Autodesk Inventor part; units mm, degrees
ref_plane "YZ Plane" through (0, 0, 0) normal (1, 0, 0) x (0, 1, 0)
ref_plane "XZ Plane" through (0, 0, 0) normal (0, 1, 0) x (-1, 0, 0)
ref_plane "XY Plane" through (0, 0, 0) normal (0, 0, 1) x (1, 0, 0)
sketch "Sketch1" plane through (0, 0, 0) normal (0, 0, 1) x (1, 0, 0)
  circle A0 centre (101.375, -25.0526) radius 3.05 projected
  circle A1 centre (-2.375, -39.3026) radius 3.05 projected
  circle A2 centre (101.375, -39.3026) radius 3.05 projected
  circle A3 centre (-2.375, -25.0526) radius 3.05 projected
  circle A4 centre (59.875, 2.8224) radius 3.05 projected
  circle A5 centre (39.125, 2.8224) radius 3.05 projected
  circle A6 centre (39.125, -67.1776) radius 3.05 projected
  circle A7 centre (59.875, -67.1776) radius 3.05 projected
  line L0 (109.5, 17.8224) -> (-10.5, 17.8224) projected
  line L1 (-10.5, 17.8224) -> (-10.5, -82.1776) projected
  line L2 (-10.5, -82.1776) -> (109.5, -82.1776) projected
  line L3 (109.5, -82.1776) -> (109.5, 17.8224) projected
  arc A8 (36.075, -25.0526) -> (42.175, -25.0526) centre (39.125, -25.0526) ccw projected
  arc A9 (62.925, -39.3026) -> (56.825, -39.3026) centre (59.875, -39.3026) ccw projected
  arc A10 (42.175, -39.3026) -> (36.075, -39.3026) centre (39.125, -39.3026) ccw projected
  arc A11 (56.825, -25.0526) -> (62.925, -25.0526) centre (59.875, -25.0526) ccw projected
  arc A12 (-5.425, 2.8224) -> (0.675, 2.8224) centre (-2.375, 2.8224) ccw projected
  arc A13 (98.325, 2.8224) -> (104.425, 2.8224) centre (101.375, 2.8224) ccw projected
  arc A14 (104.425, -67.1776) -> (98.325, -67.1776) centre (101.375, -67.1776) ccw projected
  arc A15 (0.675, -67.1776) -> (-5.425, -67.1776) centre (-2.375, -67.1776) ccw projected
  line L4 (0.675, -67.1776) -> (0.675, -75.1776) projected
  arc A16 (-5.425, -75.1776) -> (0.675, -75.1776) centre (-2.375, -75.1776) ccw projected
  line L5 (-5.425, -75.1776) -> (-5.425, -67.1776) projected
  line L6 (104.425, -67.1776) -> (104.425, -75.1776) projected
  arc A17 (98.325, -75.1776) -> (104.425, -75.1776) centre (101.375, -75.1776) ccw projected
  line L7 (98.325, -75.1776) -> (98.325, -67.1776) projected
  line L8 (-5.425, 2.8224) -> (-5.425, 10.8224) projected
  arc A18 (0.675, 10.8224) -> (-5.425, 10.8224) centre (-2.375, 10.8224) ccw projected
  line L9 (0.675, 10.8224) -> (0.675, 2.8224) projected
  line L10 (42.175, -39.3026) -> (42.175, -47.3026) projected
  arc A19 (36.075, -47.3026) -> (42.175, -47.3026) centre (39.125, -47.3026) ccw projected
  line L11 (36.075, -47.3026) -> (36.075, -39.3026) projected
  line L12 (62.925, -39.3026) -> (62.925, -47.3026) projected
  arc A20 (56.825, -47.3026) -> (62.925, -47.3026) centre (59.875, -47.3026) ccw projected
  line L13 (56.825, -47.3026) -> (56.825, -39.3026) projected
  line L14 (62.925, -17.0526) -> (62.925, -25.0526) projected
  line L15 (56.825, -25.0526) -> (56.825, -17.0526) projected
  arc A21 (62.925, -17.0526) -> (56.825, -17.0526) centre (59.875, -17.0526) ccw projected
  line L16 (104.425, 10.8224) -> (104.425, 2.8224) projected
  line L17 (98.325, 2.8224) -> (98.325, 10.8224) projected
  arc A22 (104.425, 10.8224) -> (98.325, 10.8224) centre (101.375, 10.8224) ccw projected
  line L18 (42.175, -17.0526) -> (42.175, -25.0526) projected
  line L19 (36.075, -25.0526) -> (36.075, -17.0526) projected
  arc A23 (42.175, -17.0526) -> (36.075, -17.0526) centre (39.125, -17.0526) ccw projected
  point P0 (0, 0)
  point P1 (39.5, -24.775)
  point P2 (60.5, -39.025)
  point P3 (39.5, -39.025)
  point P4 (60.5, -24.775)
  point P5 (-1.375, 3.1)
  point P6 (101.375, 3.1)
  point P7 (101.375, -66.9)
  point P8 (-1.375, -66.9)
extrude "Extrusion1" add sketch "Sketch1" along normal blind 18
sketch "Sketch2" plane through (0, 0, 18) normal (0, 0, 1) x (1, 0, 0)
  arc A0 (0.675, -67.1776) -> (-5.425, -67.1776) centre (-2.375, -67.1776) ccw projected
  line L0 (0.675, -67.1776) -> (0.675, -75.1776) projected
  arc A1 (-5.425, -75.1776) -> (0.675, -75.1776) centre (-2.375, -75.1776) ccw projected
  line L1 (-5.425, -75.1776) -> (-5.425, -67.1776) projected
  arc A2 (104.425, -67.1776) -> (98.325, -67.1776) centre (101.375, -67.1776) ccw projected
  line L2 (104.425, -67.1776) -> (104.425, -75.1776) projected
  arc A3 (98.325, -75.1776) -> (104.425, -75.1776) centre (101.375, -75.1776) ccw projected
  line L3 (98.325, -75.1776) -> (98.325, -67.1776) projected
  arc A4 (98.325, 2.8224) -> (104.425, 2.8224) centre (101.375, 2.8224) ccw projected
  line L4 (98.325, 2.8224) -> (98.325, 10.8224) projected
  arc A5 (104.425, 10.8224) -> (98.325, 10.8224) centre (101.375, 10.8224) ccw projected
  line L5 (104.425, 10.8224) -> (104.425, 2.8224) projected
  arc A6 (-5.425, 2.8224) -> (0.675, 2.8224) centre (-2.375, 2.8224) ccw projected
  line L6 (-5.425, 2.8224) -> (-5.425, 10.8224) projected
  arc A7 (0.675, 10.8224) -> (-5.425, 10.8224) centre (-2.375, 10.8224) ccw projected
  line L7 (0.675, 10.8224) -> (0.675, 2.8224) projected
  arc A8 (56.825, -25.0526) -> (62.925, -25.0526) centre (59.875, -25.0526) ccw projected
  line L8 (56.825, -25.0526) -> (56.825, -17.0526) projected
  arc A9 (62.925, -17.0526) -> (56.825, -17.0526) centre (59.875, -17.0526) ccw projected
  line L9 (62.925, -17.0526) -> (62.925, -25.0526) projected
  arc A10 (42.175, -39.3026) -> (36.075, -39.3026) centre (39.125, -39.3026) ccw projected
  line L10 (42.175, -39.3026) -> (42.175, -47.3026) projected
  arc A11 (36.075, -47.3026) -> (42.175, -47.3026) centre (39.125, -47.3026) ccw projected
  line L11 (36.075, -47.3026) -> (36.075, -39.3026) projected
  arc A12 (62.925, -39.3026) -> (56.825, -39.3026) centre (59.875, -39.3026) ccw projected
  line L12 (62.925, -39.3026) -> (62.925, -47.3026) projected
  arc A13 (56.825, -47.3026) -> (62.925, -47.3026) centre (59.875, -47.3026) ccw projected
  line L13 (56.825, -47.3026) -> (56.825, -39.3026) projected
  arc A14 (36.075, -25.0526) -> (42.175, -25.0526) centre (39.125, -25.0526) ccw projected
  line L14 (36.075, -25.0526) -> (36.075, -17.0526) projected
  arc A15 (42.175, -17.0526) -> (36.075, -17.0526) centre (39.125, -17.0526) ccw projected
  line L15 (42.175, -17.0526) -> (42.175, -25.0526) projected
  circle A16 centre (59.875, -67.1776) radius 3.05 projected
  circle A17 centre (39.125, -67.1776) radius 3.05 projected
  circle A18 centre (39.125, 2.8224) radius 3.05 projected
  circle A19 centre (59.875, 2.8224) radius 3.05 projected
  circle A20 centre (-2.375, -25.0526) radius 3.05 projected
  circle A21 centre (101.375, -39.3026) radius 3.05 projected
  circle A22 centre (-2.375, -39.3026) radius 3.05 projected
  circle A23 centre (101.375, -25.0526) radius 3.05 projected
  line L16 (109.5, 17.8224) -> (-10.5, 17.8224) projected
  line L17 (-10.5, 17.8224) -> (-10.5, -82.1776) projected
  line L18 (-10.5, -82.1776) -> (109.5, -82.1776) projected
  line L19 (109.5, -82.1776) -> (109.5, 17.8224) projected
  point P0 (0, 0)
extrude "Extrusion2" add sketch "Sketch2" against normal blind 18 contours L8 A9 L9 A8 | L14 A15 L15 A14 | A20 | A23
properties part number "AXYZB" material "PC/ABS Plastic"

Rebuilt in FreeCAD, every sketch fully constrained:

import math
import FreeCAD as App
import Part
import Sketcher

V = App.Vector
Q = App.Units.Quantity


def add_polygon(sketch, points):
    """Adds a closed chain of lines whose ends are joined by coincident constraints."""
    first, n = sketch.GeometryCount, len(points)
    for a, b in zip(points, points[1:] + points[:1]):
        sketch.addGeometry(Part.LineSegment(App.Vector(*a, 0), App.Vector(*b, 0)), False)
    for i in range(n):
        sketch.addConstraint(Sketcher.Constraint("Coincident", first + i, 2, first + (i + 1) % n, 1))

doc = App.newDocument("Part")
params = doc.addObject("Spreadsheet::Sheet", "Params")
for row, (alias, value) in enumerate([
    ("sketch1_diameter", "6.1 mm"),
    ("sketch1_width", "120 mm"),
    ("sketch1_height", "100 mm"),
    ("sketch1_height2", "8 mm"),
    ("pad1_length", "18 mm"),
    ("sketch2_diameter", "6.1 mm"),
    ("sketch2_height", "8 mm"),
    ("pad2_length", "18 mm"),
], start=1):
    params.set(f"A{row}", alias)
    params.set(f"B{row}", "=" + value)
    params.setAlias(f"B{row}", alias)

body = doc.addObject("PartDesign::Body", "Body")

sketch1 = body.newObject("Sketcher::SketchObject", "Sketch")
sketch1.AttachmentSupport = (doc.getObject("XY_Plane"), [""])
sketch1.MapMode = "FlatFace"
add_polygon(sketch1, [(109.5, -82.1776), (109.5, 17.8224), (-10.5, 17.8224), (-10.5, -82.1776)])
sketch1.addGeometry(Part.ArcOfCircle(Part.Circle(V(-2.375, -67.1776, 0), V(0, 0, 1), 3.05), math.radians(0), math.radians(180)), False)
sketch1.addGeometry(Part.LineSegment(V(0.675, -67.1776, 0), V(0.675, -75.1776, 0)), False)
sketch1.addGeometry(Part.ArcOfCircle(Part.Circle(V(-2.375, -75.1776, 0), V(0, 0, 1), 3.05), math.radians(180), math.radians(360)), False)
sketch1.addGeometry(Part.LineSegment(V(-5.425, -75.1776, 0), V(-5.425, -67.1776, 0)), False)
sketch1.addGeometry(Part.Circle(V(39.125, -67.1776, 0), V(0, 0, 1), 3.05), False)
sketch1.addGeometry(Part.Circle(V(-2.375, -39.3026, 0), V(0, 0, 1), 3.05), False)
sketch1.addGeometry(Part.ArcOfCircle(Part.Circle(V(39.125, -39.3026, 0), V(0, 0, 1), 3.05), math.radians(0), math.radians(180)), False)
sketch1.addGeometry(Part.LineSegment(V(42.175, -39.3026, 0), V(42.175, -47.3026, 0)), False)
sketch1.addGeometry(Part.ArcOfCircle(Part.Circle(V(39.125, -47.3026, 0), V(0, 0, 1), 3.05), math.radians(180), math.radians(360)), False)
sketch1.addGeometry(Part.LineSegment(V(36.075, -47.3026, 0), V(36.075, -39.3026, 0)), False)
sketch1.addGeometry(Part.Circle(V(59.875, -67.1776, 0), V(0, 0, 1), 3.05), False)
sketch1.addGeometry(Part.ArcOfCircle(Part.Circle(V(101.375, -67.1776, 0), V(0, 0, 1), 3.05), math.radians(0), math.radians(180)), False)
sketch1.addGeometry(Part.LineSegment(V(104.425, -67.1776, 0), V(104.425, -75.1776, 0)), False)
sketch1.addGeometry(Part.ArcOfCircle(Part.Circle(V(101.375, -75.1776, 0), V(0, 0, 1), 3.05), math.radians(180), math.radians(360)), False)
sketch1.addGeometry(Part.LineSegment(V(98.325, -75.1776, 0), V(98.325, -67.1776, 0)), False)
sketch1.addGeometry(Part.ArcOfCircle(Part.Circle(V(59.875, -39.3026, 0), V(0, 0, 1), 3.05), math.radians(0), math.radians(180)), False)
sketch1.addGeometry(Part.LineSegment(V(62.925, -39.3026, 0), V(62.925, -47.3026, 0)), False)
sketch1.addGeometry(Part.ArcOfCircle(Part.Circle(V(59.875, -47.3026, 0), V(0, 0, 1), 3.05), math.radians(180), math.radians(360)), False)
sketch1.addGeometry(Part.LineSegment(V(56.825, -47.3026, 0), V(56.825, -39.3026, 0)), False)
sketch1.addGeometry(Part.Circle(V(101.375, -39.3026, 0), V(0, 0, 1), 3.05), False)
sketch1.addGeometry(Part.Circle(V(-2.375, -25.0526, 0), V(0, 0, 1), 3.05), False)
sketch1.addGeometry(Part.ArcOfCircle(Part.Circle(V(39.125, -25.0526, 0), V(0, 0, 1), 3.05), math.radians(180), math.radians(360)), False)
sketch1.addGeometry(Part.LineSegment(V(36.075, -25.0526, 0), V(36.075, -17.0526, 0)), False)
sketch1.addGeometry(Part.ArcOfCircle(Part.Circle(V(39.125, -17.0526, 0), V(0, 0, 1), 3.05), math.radians(0), math.radians(180)), False)
sketch1.addGeometry(Part.LineSegment(V(42.175, -17.0526, 0), V(42.175, -25.0526, 0)), False)
sketch1.addGeometry(Part.ArcOfCircle(Part.Circle(V(-2.375, 2.8224, 0), V(0, 0, 1), 3.05), math.radians(180), math.radians(360)), False)
sketch1.addGeometry(Part.LineSegment(V(-5.425, 2.8224, 0), V(-5.425, 10.8224, 0)), False)
sketch1.addGeometry(Part.ArcOfCircle(Part.Circle(V(-2.375, 10.8224, 0), V(0, 0, 1), 3.05), math.radians(0), math.radians(180)), False)
sketch1.addGeometry(Part.LineSegment(V(0.675, 10.8224, 0), V(0.675, 2.8224, 0)), False)
sketch1.addGeometry(Part.Circle(V(39.125, 2.8224, 0), V(0, 0, 1), 3.05), False)
sketch1.addGeometry(Part.ArcOfCircle(Part.Circle(V(59.875, -25.0526, 0), V(0, 0, 1), 3.05), math.radians(180), math.radians(360)), False)
sketch1.addGeometry(Part.LineSegment(V(56.825, -25.0526, 0), V(56.825, -17.0526, 0)), False)
sketch1.addGeometry(Part.ArcOfCircle(Part.Circle(V(59.875, -17.0526, 0), V(0, 0, 1), 3.05), math.radians(0), math.radians(180)), False)
sketch1.addGeometry(Part.LineSegment(V(62.925, -17.0526, 0), V(62.925, -25.0526, 0)), False)
sketch1.addGeometry(Part.Circle(V(101.375, -25.0526, 0), V(0, 0, 1), 3.05), False)
sketch1.addGeometry(Part.Circle(V(59.875, 2.8224, 0), V(0, 0, 1), 3.05), False)
sketch1.addGeometry(Part.ArcOfCircle(Part.Circle(V(101.375, 2.8224, 0), V(0, 0, 1), 3.05), math.radians(180), math.radians(360)), False)
sketch1.addGeometry(Part.LineSegment(V(98.325, 2.8224, 0), V(98.325, 10.8224, 0)), False)
sketch1.addGeometry(Part.ArcOfCircle(Part.Circle(V(101.375, 10.8224, 0), V(0, 0, 1), 3.05), math.radians(0), math.radians(180)), False)
sketch1.addGeometry(Part.LineSegment(V(104.425, 10.8224, 0), V(104.425, 2.8224, 0)), False)
sketch1.addConstraint(Sketcher.Constraint("Tangent", 4, 1, 5, 1))
sketch1.addConstraint(Sketcher.Constraint("Tangent", 5, 2, 6, 2))
sketch1.addConstraint(Sketcher.Constraint("Tangent", 6, 1, 7, 1))
sketch1.addConstraint(Sketcher.Constraint("Tangent", 7, 2, 4, 2))
sketch1.addConstraint(Sketcher.Constraint("Tangent", 10, 1, 11, 1))
sketch1.addConstraint(Sketcher.Constraint("Tangent", 11, 2, 12, 2))
sketch1.addConstraint(Sketcher.Constraint("Tangent", 12, 1, 13, 1))
sketch1.addConstraint(Sketcher.Constraint("Tangent", 13, 2, 10, 2))
sketch1.addConstraint(Sketcher.Constraint("Tangent", 15, 1, 16, 1))
sketch1.addConstraint(Sketcher.Constraint("Tangent", 16, 2, 17, 2))
sketch1.addConstraint(Sketcher.Constraint("Tangent", 17, 1, 18, 1))
sketch1.addConstraint(Sketcher.Constraint("Tangent", 18, 2, 15, 2))
sketch1.addConstraint(Sketcher.Constraint("Tangent", 19, 1, 20, 1))
sketch1.addConstraint(Sketcher.Constraint("Tangent", 20, 2, 21, 2))
sketch1.addConstraint(Sketcher.Constraint("Tangent", 21, 1, 22, 1))
sketch1.addConstraint(Sketcher.Constraint("Tangent", 22, 2, 19, 2))
sketch1.addConstraint(Sketcher.Constraint("Tangent", 25, 1, 26, 1))
sketch1.addConstraint(Sketcher.Constraint("Tangent", 26, 2, 27, 2))
sketch1.addConstraint(Sketcher.Constraint("Tangent", 27, 1, 28, 1))
sketch1.addConstraint(Sketcher.Constraint("Tangent", 28, 2, 25, 2))
sketch1.addConstraint(Sketcher.Constraint("Tangent", 29, 1, 30, 1))
sketch1.addConstraint(Sketcher.Constraint("Tangent", 30, 2, 31, 2))
sketch1.addConstraint(Sketcher.Constraint("Tangent", 31, 1, 32, 1))
sketch1.addConstraint(Sketcher.Constraint("Tangent", 32, 2, 29, 2))
sketch1.addConstraint(Sketcher.Constraint("Tangent", 34, 1, 35, 1))
sketch1.addConstraint(Sketcher.Constraint("Tangent", 35, 2, 36, 2))
sketch1.addConstraint(Sketcher.Constraint("Tangent", 36, 1, 37, 1))
sketch1.addConstraint(Sketcher.Constraint("Tangent", 37, 2, 34, 2))
sketch1.addConstraint(Sketcher.Constraint("Tangent", 40, 1, 41, 1))
sketch1.addConstraint(Sketcher.Constraint("Tangent", 41, 2, 42, 2))
sketch1.addConstraint(Sketcher.Constraint("Tangent", 42, 1, 43, 1))
sketch1.addConstraint(Sketcher.Constraint("Tangent", 43, 2, 40, 2))
sketch1.addConstraint(Sketcher.Constraint("Vertical", 0))
sketch1.addConstraint(Sketcher.Constraint("Horizontal", 1))
sketch1.addConstraint(Sketcher.Constraint("Vertical", 2))
sketch1.addConstraint(Sketcher.Constraint("Horizontal", 3))
sketch1.addConstraint(Sketcher.Constraint("Vertical", 5))
sketch1.addConstraint(Sketcher.Constraint("Vertical", 7))
sketch1.addConstraint(Sketcher.Constraint("Vertical", 11))
sketch1.addConstraint(Sketcher.Constraint("Vertical", 13))
sketch1.addConstraint(Sketcher.Constraint("Vertical", 16))
sketch1.addConstraint(Sketcher.Constraint("Vertical", 18))
sketch1.addConstraint(Sketcher.Constraint("Vertical", 20))
sketch1.addConstraint(Sketcher.Constraint("Vertical", 22))
sketch1.addConstraint(Sketcher.Constraint("Vertical", 26))
sketch1.addConstraint(Sketcher.Constraint("Vertical", 28))
sketch1.addConstraint(Sketcher.Constraint("Vertical", 30))
sketch1.addConstraint(Sketcher.Constraint("Vertical", 32))
sketch1.addConstraint(Sketcher.Constraint("Vertical", 35))
sketch1.addConstraint(Sketcher.Constraint("Vertical", 37))
sketch1.addConstraint(Sketcher.Constraint("Vertical", 41))
sketch1.addConstraint(Sketcher.Constraint("Vertical", 43))
sketch1.addConstraint(Sketcher.Constraint("Equal", 6, 8))
sketch1.addConstraint(Sketcher.Constraint("Equal", 8, 9))
sketch1.addConstraint(Sketcher.Constraint("Equal", 9, 10))
sketch1.addConstraint(Sketcher.Constraint("Equal", 12, 14))
sketch1.addConstraint(Sketcher.Constraint("Equal", 14, 15))
sketch1.addConstraint(Sketcher.Constraint("Equal", 17, 19))
sketch1.addConstraint(Sketcher.Constraint("Equal", 21, 23))
sketch1.addConstraint(Sketcher.Constraint("Equal", 23, 24))
sketch1.addConstraint(Sketcher.Constraint("Equal", 24, 25))
sketch1.addConstraint(Sketcher.Constraint("Equal", 27, 29))
sketch1.addConstraint(Sketcher.Constraint("Equal", 31, 33))
sketch1.addConstraint(Sketcher.Constraint("Equal", 33, 34))
sketch1.addConstraint(Sketcher.Constraint("Equal", 36, 38))
sketch1.addConstraint(Sketcher.Constraint("Equal", 38, 39))
sketch1.addConstraint(Sketcher.Constraint("Equal", 39, 40))
sketch1.addConstraint(Sketcher.Constraint("Horizontal", 4, 3, 8, 3))
sketch1.addConstraint(Sketcher.Constraint("Horizontal", 9, 3, 10, 3))
sketch1.addConstraint(Sketcher.Constraint("Horizontal", 8, 3, 14, 3))
sketch1.addConstraint(Sketcher.Constraint("Horizontal", 14, 3, 15, 3))
sketch1.addConstraint(Sketcher.Constraint("Horizontal", 6, 3, 17, 3))
sketch1.addConstraint(Sketcher.Constraint("Horizontal", 10, 3, 19, 3))
sketch1.addConstraint(Sketcher.Constraint("Horizontal", 12, 3, 21, 3))
sketch1.addConstraint(Sketcher.Constraint("Horizontal", 19, 3, 23, 3))
sketch1.addConstraint(Sketcher.Constraint("Horizontal", 24, 3, 25, 3))
sketch1.addConstraint(Sketcher.Constraint("Horizontal", 29, 3, 33, 3))
sketch1.addConstraint(Sketcher.Constraint("Horizontal", 25, 3, 34, 3))
sketch1.addConstraint(Sketcher.Constraint("Horizontal", 27, 3, 36, 3))
sketch1.addConstraint(Sketcher.Constraint("Horizontal", 34, 3, 38, 3))
sketch1.addConstraint(Sketcher.Constraint("Horizontal", 33, 3, 39, 3))
sketch1.addConstraint(Sketcher.Constraint("Horizontal", 39, 3, 40, 3))
sketch1.addConstraint(Sketcher.Constraint("Horizontal", 31, 3, 42, 3))
sketch1.addConstraint(Sketcher.Constraint("Vertical", 6, 3, 9, 3))
sketch1.addConstraint(Sketcher.Constraint("Vertical", 8, 3, 10, 3))
sketch1.addConstraint(Sketcher.Constraint("Vertical", 14, 3, 19, 3))
sketch1.addConstraint(Sketcher.Constraint("Vertical", 17, 3, 23, 3))
sketch1.addConstraint(Sketcher.Constraint("Vertical", 9, 3, 24, 3))
sketch1.addConstraint(Sketcher.Constraint("Vertical", 12, 3, 25, 3))
sketch1.addConstraint(Sketcher.Constraint("Vertical", 24, 3, 29, 3))
sketch1.addConstraint(Sketcher.Constraint("Vertical", 27, 3, 33, 3))
sketch1.addConstraint(Sketcher.Constraint("Vertical", 21, 3, 34, 3))
sketch1.addConstraint(Sketcher.Constraint("Vertical", 23, 3, 38, 3))
sketch1.addConstraint(Sketcher.Constraint("Vertical", 36, 3, 39, 3))
sketch1.addConstraint(Sketcher.Constraint("Vertical", 38, 3, 40, 3))
sketch1.addConstraint(Sketcher.Constraint("Equal", 7, 11))
sketch1.addConstraint(Sketcher.Constraint("Equal", 22, 26))
sketch1.addConstraint(Sketcher.Constraint("Equal", 28, 30))
sketch1.addConstraint(Sketcher.Constraint("Diameter", 8, Q("6.1 mm")))
sketch1.addConstraint(Sketcher.Constraint("DistanceX", 1, 2, 1, 1, Q("120 mm")))
sketch1.addConstraint(Sketcher.Constraint("DistanceY", 0, 1, 0, 2, Q("100 mm")))
sketch1.addConstraint(Sketcher.Constraint("DistanceY", 5, 2, 5, 1, Q("8 mm")))
sketch1.addConstraint(Sketcher.Constraint("DistanceY", 42, 3, 0, 2, Q("7 mm")))
sketch1.addConstraint(Sketcher.Constraint("DistanceY", 2, 2, 6, 3, Q("7 mm")))
sketch1.addConstraint(Sketcher.Constraint("DistanceX", -1, 1, 0, 2, Q("109.5 mm")))
sketch1.addConstraint(Sketcher.Constraint("DistanceX", 4, 3, 8, 3, Q("41.5 mm")))
sketch1.addConstraint(Sketcher.Constraint("DistanceX", 14, 3, 15, 3, Q("41.5 mm")))
sketch1.addConstraint(Sketcher.Constraint("DistanceX", 10, 1, 19, 3, Q("17.7 mm")))
sketch1.addConstraint(Sketcher.Constraint("DistanceY", 9, 3, 24, 3, Q("14.25 mm")))
sketch1.addConstraint(Sketcher.Constraint("DistanceX", 4, 3, -1, 1, Q("2.375 mm")))
sketch1.addConstraint(Sketcher.Constraint("DistanceY", 4, 3, 9, 3, Q("27.875 mm")))
sketch1.addConstraint(Sketcher.Constraint("DistanceY", 4, 3, -1, 1, Q("67.1776 mm")))
sketch1.setExpression("Constraints[102]", "Params.sketch1_diameter")
sketch1.setExpression("Constraints[103]", "Params.sketch1_width")
sketch1.setExpression("Constraints[104]", "Params.sketch1_height")
sketch1.setExpression("Constraints[105]", "Params.sketch1_height2")
pad1 = body.newObject("PartDesign::Pad", "Pad")
pad1.Profile = sketch1
pad1.setExpression("Length", "Params.pad1_length")

sketch2 = body.newObject("Sketcher::SketchObject", "Sketch001")
sketch2.AttachmentSupport = (doc.getObject("XY_Plane"), [""])
sketch2.MapMode = "FlatFace"
sketch2.AttachmentOffset = App.Placement(V(0, 0, 18), App.Rotation())
sketch2.addGeometry(Part.LineSegment(V(56.825, -17.0526, 0), V(56.825, -25.0526, 0)), False)
sketch2.addGeometry(Part.ArcOfCircle(Part.Circle(V(59.875, -25.0526, 0), V(0, 0, 1), 3.05), math.radians(180), math.radians(360)), False)
sketch2.addGeometry(Part.LineSegment(V(62.925, -25.0526, 0), V(62.925, -17.0526, 0)), False)
sketch2.addGeometry(Part.ArcOfCircle(Part.Circle(V(59.875, -17.0526, 0), V(0, 0, 1), 3.05), math.radians(0), math.radians(180)), False)
sketch2.addGeometry(Part.LineSegment(V(36.075, -17.0526, 0), V(36.075, -25.0526, 0)), False)
sketch2.addGeometry(Part.ArcOfCircle(Part.Circle(V(39.125, -25.0526, 0), V(0, 0, 1), 3.05), math.radians(180), math.radians(360)), False)
sketch2.addGeometry(Part.LineSegment(V(42.175, -25.0526, 0), V(42.175, -17.0526, 0)), False)
sketch2.addGeometry(Part.ArcOfCircle(Part.Circle(V(39.125, -17.0526, 0), V(0, 0, 1), 3.05), math.radians(0), math.radians(180)), False)
sketch2.addGeometry(Part.Circle(V(-2.375, -25.0526, 0), V(0, 0, 1), 3.05), False)
sketch2.addGeometry(Part.Circle(V(101.375, -25.0526, 0), V(0, 0, 1), 3.05), False)
sketch2.addConstraint(Sketcher.Constraint("Tangent", 0, 2, 1, 1))
sketch2.addConstraint(Sketcher.Constraint("Tangent", 1, 2, 2, 1))
sketch2.addConstraint(Sketcher.Constraint("Tangent", 2, 2, 3, 1))
sketch2.addConstraint(Sketcher.Constraint("Tangent", 3, 2, 0, 1))
sketch2.addConstraint(Sketcher.Constraint("Tangent", 4, 2, 5, 1))
sketch2.addConstraint(Sketcher.Constraint("Tangent", 5, 2, 6, 1))
sketch2.addConstraint(Sketcher.Constraint("Tangent", 6, 2, 7, 1))
sketch2.addConstraint(Sketcher.Constraint("Tangent", 7, 2, 4, 1))
sketch2.addConstraint(Sketcher.Constraint("Vertical", 0))
sketch2.addConstraint(Sketcher.Constraint("Vertical", 2))
sketch2.addConstraint(Sketcher.Constraint("Vertical", 4))
sketch2.addConstraint(Sketcher.Constraint("Vertical", 6))
sketch2.addConstraint(Sketcher.Constraint("Equal", 3, 5))
sketch2.addConstraint(Sketcher.Constraint("Equal", 7, 8))
sketch2.addConstraint(Sketcher.Constraint("Equal", 8, 9))
sketch2.addConstraint(Sketcher.Constraint("Horizontal", 1, 3, 5, 3))
sketch2.addConstraint(Sketcher.Constraint("Horizontal", 3, 3, 7, 3))
sketch2.addConstraint(Sketcher.Constraint("Horizontal", 5, 3, 8, 3))
sketch2.addConstraint(Sketcher.Constraint("Horizontal", 8, 3, 9, 3))
sketch2.addConstraint(Sketcher.Constraint("Diameter", 8, Q("6.1 mm")))
sketch2.addConstraint(Sketcher.Constraint("DistanceY", 0, 2, 0, 1, Q("8 mm")))
sketch2.addConstraint(Sketcher.Constraint("DistanceX", 8, 3, 5, 3, Q("41.5 mm")))
sketch2.addConstraint(Sketcher.Constraint("DistanceX", 1, 3, 9, 3, Q("41.5 mm")))
sketch2.addConstraint(Sketcher.Constraint("DistanceX", 5, 3, 0, 2, Q("17.7 mm")))
sketch2.addConstraint(Sketcher.Constraint("DistanceX", -1, 1, 1, 3, Q("59.875 mm")))
sketch2.addConstraint(Sketcher.Constraint("DistanceY", 1, 3, -1, 1, Q("25.0526 mm")))
sketch2.setExpression("Constraints[19]", "Params.sketch2_diameter")
sketch2.setExpression("Constraints[20]", "Params.sketch2_height")
pad2 = body.newObject("PartDesign::Pad", "Pad001")
pad2.Profile = sketch2
pad2.setExpression("Length", "Params.pad2_length")
pad2.Reversed = True

doc.recompute()
